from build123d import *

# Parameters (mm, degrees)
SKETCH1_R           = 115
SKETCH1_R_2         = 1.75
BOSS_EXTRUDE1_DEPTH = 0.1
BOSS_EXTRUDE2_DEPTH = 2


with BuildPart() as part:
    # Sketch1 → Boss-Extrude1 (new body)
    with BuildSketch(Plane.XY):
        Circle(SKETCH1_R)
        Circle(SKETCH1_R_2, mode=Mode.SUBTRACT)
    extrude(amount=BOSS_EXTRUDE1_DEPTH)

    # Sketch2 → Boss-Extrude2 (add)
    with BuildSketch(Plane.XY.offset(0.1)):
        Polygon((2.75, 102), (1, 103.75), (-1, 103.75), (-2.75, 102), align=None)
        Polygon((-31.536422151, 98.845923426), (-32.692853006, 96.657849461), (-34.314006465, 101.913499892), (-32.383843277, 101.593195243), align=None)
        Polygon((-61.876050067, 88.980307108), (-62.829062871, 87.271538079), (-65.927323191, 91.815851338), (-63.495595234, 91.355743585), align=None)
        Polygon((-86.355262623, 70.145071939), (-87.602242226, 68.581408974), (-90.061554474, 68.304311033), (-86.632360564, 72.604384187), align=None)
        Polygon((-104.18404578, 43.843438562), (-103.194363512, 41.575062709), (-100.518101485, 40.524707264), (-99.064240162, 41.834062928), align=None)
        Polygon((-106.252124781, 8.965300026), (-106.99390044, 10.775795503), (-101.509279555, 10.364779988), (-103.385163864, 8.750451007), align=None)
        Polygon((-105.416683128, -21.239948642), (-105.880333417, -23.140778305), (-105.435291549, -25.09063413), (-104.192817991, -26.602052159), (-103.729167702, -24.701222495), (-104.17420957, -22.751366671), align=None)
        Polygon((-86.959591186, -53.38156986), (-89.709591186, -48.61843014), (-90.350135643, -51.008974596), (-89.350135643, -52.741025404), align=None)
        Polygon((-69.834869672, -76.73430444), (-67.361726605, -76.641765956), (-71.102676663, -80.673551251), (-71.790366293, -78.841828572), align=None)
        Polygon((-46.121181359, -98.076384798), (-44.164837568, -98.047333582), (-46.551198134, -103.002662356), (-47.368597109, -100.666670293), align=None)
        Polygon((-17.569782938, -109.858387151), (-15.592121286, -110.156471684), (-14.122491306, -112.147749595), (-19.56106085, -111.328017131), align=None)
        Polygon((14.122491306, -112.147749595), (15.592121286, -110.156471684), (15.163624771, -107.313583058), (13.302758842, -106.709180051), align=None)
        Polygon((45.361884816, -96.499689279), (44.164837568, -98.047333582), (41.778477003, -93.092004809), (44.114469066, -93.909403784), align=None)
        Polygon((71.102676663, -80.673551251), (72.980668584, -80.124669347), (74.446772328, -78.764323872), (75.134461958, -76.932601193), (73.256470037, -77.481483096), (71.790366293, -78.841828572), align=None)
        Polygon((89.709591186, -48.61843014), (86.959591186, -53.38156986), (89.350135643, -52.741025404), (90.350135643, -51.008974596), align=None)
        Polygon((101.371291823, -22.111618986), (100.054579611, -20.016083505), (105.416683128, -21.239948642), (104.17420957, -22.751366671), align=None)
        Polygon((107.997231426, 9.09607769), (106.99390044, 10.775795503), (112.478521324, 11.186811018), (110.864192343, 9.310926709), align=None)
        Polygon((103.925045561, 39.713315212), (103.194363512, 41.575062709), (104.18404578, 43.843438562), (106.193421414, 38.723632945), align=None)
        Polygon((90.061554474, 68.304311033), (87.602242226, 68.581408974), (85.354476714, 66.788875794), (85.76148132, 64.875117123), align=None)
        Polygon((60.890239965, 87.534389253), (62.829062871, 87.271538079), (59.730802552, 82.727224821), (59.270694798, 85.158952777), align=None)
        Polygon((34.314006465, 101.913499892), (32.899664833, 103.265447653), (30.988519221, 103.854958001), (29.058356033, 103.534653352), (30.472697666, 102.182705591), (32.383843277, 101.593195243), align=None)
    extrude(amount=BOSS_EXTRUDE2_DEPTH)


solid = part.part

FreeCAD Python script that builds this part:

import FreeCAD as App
import Part
import Sketcher
Q = App.Units.Quantity


def add_polygon(sketch, points):
    """Adds a closed chain of lines whose ends are joined by coincident constraints."""
    first, n = sketch.GeometryCount, len(points)
    for a, b in zip(points, points[1:] + points[:1]):
        sketch.addGeometry(Part.LineSegment(App.Vector(*a, 0), App.Vector(*b, 0)), False)
    for i in range(n):
        sketch.addConstraint(Sketcher.Constraint("Coincident", first + i, 2, first + (i + 1) % n, 1))

doc = App.newDocument("Part")
body = doc.addObject("PartDesign::Body", "Body")

sketch1 = body.newObject("Sketcher::SketchObject", "Sketch")
sketch1.AttachmentSupport = (doc.getObject("XY_Plane"), [""])
sketch1.MapMode = "FlatFace"
sketch1.addGeometry([
    Part.Circle(App.Vector(0, 0, 0), App.Vector(0, 0, 1), 115),
    Part.Circle(App.Vector(0, 0, 0), App.Vector(0, 0, 1), 1.8),
], False)
sketch1.addConstraint([
    Sketcher.Constraint("Coincident", 0, 3, -1, 1),
    Sketcher.Constraint("Coincident", 1, 3, -1, 1),
    Sketcher.Constraint("Diameter", 0, Q("230 mm")),
    Sketcher.Constraint("Diameter", 1, Q("3.5 mm")),
])
pad1 = body.newObject("PartDesign::Pad", "Pad")
pad1.Profile = sketch1
pad1.Length = 0.1

sketch2 = body.newObject("Sketcher::SketchObject", "Sketch001")
sketch2.AttachmentSupport = (doc.getObject("XY_Plane"), [""])
sketch2.MapMode = "FlatFace"
sketch2.AttachmentOffset = App.Placement(App.Vector(0, 0, 0.1), App.Rotation())
add_polygon(sketch2, [(2.8, 102), (1, 103.8), (-1, 103.8), (-2.8, 102)])
add_polygon(sketch2, [(-32.7, 96.7), (-31.5, 98.8), (-32.4, 101.6), (-34.3, 101.9)])
add_polygon(sketch2, [(-62.8, 87.3), (-61.9, 89), (-63.5, 91.4), (-65.9, 91.8)])
add_polygon(sketch2, [(-87.6, 68.6), (-86.4, 70.1), (-86.6, 72.6), (-90.1, 68.3)])
add_polygon(sketch2, [(-104.2, 43.8), (-103.2, 41.6), (-100.5, 40.5), (-99.1, 41.8)])
add_polygon(sketch2, [(-107, 10.8), (-106.3, 9), (-103.4, 8.8), (-101.5, 10.4)])
add_polygon(sketch2, [(-105.4, -21.2), (-105.9, -23.1), (-105.4, -25.1), (-104.2, -26.6), (-103.7, -24.7), (-104.2, -22.8)])
add_polygon(sketch2, [(-87, -53.4), (-89.7, -48.6), (-90.4, -51), (-89.4, -52.7)])
add_polygon(sketch2, [(-67.4, -76.6), (-69.8, -76.7), (-71.8, -78.8), (-71.1, -80.7)])
add_polygon(sketch2, [(-44.2, -98), (-46.1, -98.1), (-47.4, -100.7), (-46.6, -103)])
add_polygon(sketch2, [(-15.6, -110.2), (-17.6, -109.9), (-19.6, -111.3), (-14.1, -112.1)])
add_polygon(sketch2, [(14.1, -112.1), (15.6, -110.2), (15.2, -107.3), (13.3, -106.7)])
add_polygon(sketch2, [(44.2, -98), (45.4, -96.5), (44.1, -93.9), (41.8, -93.1)])
add_polygon(sketch2, [(71.1, -80.7), (73, -80.1), (74.4, -78.8), (75.1, -76.9), (73.3, -77.5), (71.8, -78.8)])
add_polygon(sketch2, [(89.7, -48.6), (87, -53.4), (89.4, -52.7), (90.4, -51)])
add_polygon(sketch2, [(100.1, -20), (101.4, -22.1), (104.2, -22.8), (105.4, -21.2)])
add_polygon(sketch2, [(107, 10.8), (108, 9.1), (110.9, 9.3), (112.5, 11.2)])
add_polygon(sketch2, [(103.2, 41.6), (103.9, 39.7), (106.2, 38.7), (104.2, 43.8)])
add_polygon(sketch2, [(90.1, 68.3), (87.6, 68.6), (85.4, 66.8), (85.8, 64.9)])
add_polygon(sketch2, [(62.8, 87.3), (60.9, 87.5), (59.3, 85.2), (59.7, 82.7)])
add_polygon(sketch2, [(34.3, 101.9), (32.9, 103.3), (31, 103.9), (29.1, 103.5), (30.5, 102.2), (32.4, 101.6)])
sketch2.addConstraint([
    Sketcher.Constraint("Horizontal", 1),
    Sketcher.Constraint("Horizontal", 3),
    Sketcher.Constraint("Symmetric", 45, 2, 46, 2, -2),
    Sketcher.Constraint("Symmetric", 44, 2, 49, 2, -2),
    Sketcher.Constraint("Symmetric", 41, 2, 53, 2, -2),
    Sketcher.Constraint("Symmetric", 35, 2, 58, 2, -2),
    Sketcher.Constraint("Symmetric", 36, 2, 59, 2, -2),
    Sketcher.Constraint("Symmetric", 33, 2, 60, 2, -2),
    Sketcher.Constraint("Symmetric", 32, 2, 61, 2, -2),
    Sketcher.Constraint("Symmetric", 31, 2, 62, 2, -2),
    Sketcher.Constraint("Symmetric", 30, 2, 63, 2, -2),
    Sketcher.Constraint("Symmetric", 28, 2, 65, 2, -2),
    Sketcher.Constraint("Symmetric", 29, 2, 66, 2, -2),
    Sketcher.Constraint("Symmetric", 23, 2, 71, 2, -2),
    Sketcher.Constraint("Symmetric", 19, 2, 74, 2, -2),
    Sketcher.Constraint("Symmetric", 16, 2, 75, 2, -2),
    Sketcher.Constraint("Symmetric", 15, 2, 76, 2, -2),
    Sketcher.Constraint("Symmetric", 14, 2, 79, 2, -2),
    Sketcher.Constraint("Symmetric", 11, 2, 83, 2, -2),
    Sketcher.Constraint("Symmetric", 5, 2, 88, 2, -2),
    Sketcher.Constraint("Symmetric", 6, 2, 89, 2, -2),
    Sketcher.Constraint("Perpendicular", 0, 2),
    Sketcher.Constraint("Parallel", 5, 7),
    Sketcher.Constraint("Parallel", 9, 11),
    Sketcher.Constraint("Parallel", 12, 14),
    Sketcher.Constraint("Perpendicular", 13, 15),
    Sketcher.Constraint("Parallel", 17, 19),
    Sketcher.Constraint("Parallel", 21, 23),
    Sketcher.Constraint("Parallel", 24, 27),
    Sketcher.Constraint("Parallel", 25, 28),
    Sketcher.Constraint("Parallel", 26, 29),
    Sketcher.Constraint("Parallel", 30, 32),
    Sketcher.Constraint("Perpendicular", 31, 33),
    Sketcher.Constraint("Parallel", 35, 37),
    Sketcher.Constraint("Parallel", 39, 41),
    Sketcher.Constraint("Parallel", 42, 44),
    Sketcher.Constraint("Perpendicular", 43, 45),
    Sketcher.Constraint("Parallel", 47, 49),
    Sketcher.Constraint("Parallel", 51, 53),
    Sketcher.Constraint("Parallel", 54, 57),
    Sketcher.Constraint("Parallel", 55, 58),
    Sketcher.Constraint("Parallel", 56, 59),
    Sketcher.Constraint("Parallel", 65, 67),
    Sketcher.Constraint("Parallel", 69, 71),
    Sketcher.Constraint("Parallel", 72, 74),
    Sketcher.Constraint("Perpendicular", 73, 75),
    Sketcher.Constraint("Parallel", 77, 79),
    Sketcher.Constraint("Parallel", 81, 83),
    Sketcher.Constraint("Parallel", 84, 87),
    Sketcher.Constraint("Parallel", 85, 88),
    Sketcher.Constraint("Parallel", 86, 89),
    Sketcher.Constraint("Equal", 0, 2),
    Sketcher.Constraint("Equal", 2, 4),
    Sketcher.Constraint("Equal", 6, 8),
    Sketcher.Constraint("Equal", 5, 9),
    Sketcher.Constraint("Equal", 4, 10),
    Sketcher.Constraint("Equal", 7, 11),
    Sketcher.Constraint("Equal", 10, 13),
    Sketcher.Constraint("Equal", 11, 14),
    Sketcher.Constraint("Equal", 13, 15),
    Sketcher.Constraint("Equal", 15, 16),
    Sketcher.Constraint("Equal", 9, 17),
    Sketcher.Constraint("Equal", 8, 18),
    Sketcher.Constraint("Equal", 14, 19),
    Sketcher.Constraint("Equal", 18, 20),
    Sketcher.Constraint("Equal", 17, 21),
    Sketcher.Constraint("Equal", 16, 22),
    Sketcher.Constraint("Equal", 19, 23),
    Sketcher.Constraint("Equal", 20, 24),
    Sketcher.Constraint("Equal", 12, 25),
    Sketcher.Constraint("Equal", 24, 26),
    Sketcher.Constraint("Equal", 26, 27),
    Sketcher.Constraint("Equal", 23, 30),
    Sketcher.Constraint("Equal", 22, 31),
    Sketcher.Constraint("Equal", 28, 32),
    Sketcher.Constraint("Equal", 33, 34),
    Sketcher.Constraint("Equal", 21, 35),
    Sketcher.Constraint("Equal", 29, 36),
    Sketcher.Constraint("Equal", 30, 37),
    Sketcher.Constraint("Equal", 36, 38),
    Sketcher.Constraint("Equal", 35, 39),
    Sketcher.Constraint("Equal", 34, 40),
    Sketcher.Constraint("Equal", 37, 41),
    Sketcher.Constraint("Equal", 32, 42),
    Sketcher.Constraint("Equal", 40, 43),
    Sketcher.Constraint("Equal", 41, 44),
    Sketcher.Constraint("Equal", 39, 47),
    Sketcher.Constraint("Equal", 38, 48),
    Sketcher.Constraint("Equal", 44, 49),
    Sketcher.Constraint("Equal", 48, 50),
    Sketcher.Constraint("Equal", 47, 51),
    Sketcher.Constraint("Equal", 46, 52),
    Sketcher.Constraint("Equal", 49, 53),
    Sketcher.Constraint("Equal", 50, 54),
    Sketcher.Constraint("Equal", 42, 55),
    Sketcher.Constraint("Equal", 54, 56),
    Sketcher.Constraint("Equal", 63, 64),
    Sketcher.Constraint("Equal", 51, 65),
    Sketcher.Constraint("Equal", 60, 67),
    Sketcher.Constraint("Equal", 66, 68),
    Sketcher.Constraint("Equal", 65, 69),
    Sketcher.Constraint("Equal", 64, 70),
    Sketcher.Constraint("Equal", 67, 71),
    Sketcher.Constraint("Equal", 62, 72),
    Sketcher.Constraint("Equal", 70, 73),
    Sketcher.Constraint("Equal", 69, 77),
    Sketcher.Constraint("Equal", 68, 78),
    Sketcher.Constraint("Equal", 74, 79),
    Sketcher.Constraint("Equal", 78, 80),
    Sketcher.Constraint("Equal", 77, 81),
    Sketcher.Constraint("Equal", 76, 82),
    Sketcher.Constraint("Equal", 79, 83),
    Sketcher.Constraint("Equal", 80, 84),
    Sketcher.Constraint("Equal", 72, 85),
    Sketcher.Constraint("Equal", 84, 86),
    Sketcher.Constraint("DistanceX", 1, 2, 1, 1, Q("2 mm")),
    Sketcher.Constraint("Angle", 30, Q("120 deg")),
    Sketcher.Constraint("Distance", 12, Q("2 mm")),
    Sketcher.Constraint("DistanceX", 3, 1, 3, 2, Q("5.5 mm")),
    Sketcher.Constraint("DistanceX", -1, 1, 0, 2, Q("1 mm")),
    Sketcher.Constraint("DistanceY", -1, 1, 2, 2, Q("102 mm")),
    Sketcher.Constraint("Distance", 5, Q("2.875 mm")),
    Sketcher.Constraint("DistanceY", -1, 1, 6, 2, Q("101.9135 mm")),
    Sketcher.Constraint("DistanceX", 17, 2, -1, 1, Q("100.518101 mm")),
    Sketcher.Constraint("DistanceY", -1, 1, 20, 2, Q("8.9653 mm")),
    Sketcher.Constraint("DistanceX", 23, 2, -1, 1, Q("106.9939 mm")),
    Sketcher.Constraint("DistanceX", 40, 2, -1, 1, Q("46.551198 mm")),
    Sketcher.Constraint("DistanceY", 56, 2, -1, 1, Q("76.932601 mm")),
    Sketcher.Constraint("Distance", 6, Q("1.956559 mm")),
    Sketcher.Constraint("DistanceY", -1, 1, 7, 2, Q("96.657849 mm")),
    Sketcher.Constraint("DistanceX", 8, 2, -1, 1, Q("61.87605 mm")),
    Sketcher.Constraint("DistanceY", -1, 1, 10, 2, Q("91.815851 mm")),
    Sketcher.Constraint("DistanceY", -1, 1, 11, 2, Q("87.271538 mm")),
    Sketcher.Constraint("DistanceY", -1, 1, 12, 2, Q("70.145072 mm")),
    Sketcher.Constraint("DistanceX", 13, 2, -1, 1, Q("86.632361 mm")),
    Sketcher.Constraint("DistanceY", -1, 1, 14, 2, Q("68.304311 mm")),
    Sketcher.Constraint("DistanceX", 18, 2, -1, 1, Q("99.06424 mm")),
    Sketcher.Constraint("DistanceY", -1, 1, 19, 2, Q("43.843439 mm")),
    Sketcher.Constraint("DistanceY", -1, 1, 21, 2, Q("8.750451 mm")),
    Sketcher.Constraint("DistanceY", 24, 2, -1, 1, Q("23.140778 mm")),
    Sketcher.Constraint("DistanceX", 25, 2, -1, 1, Q("105.435292 mm")),
    Sketcher.Constraint("DistanceX", 28, 2, -1, 1, Q("104.17421 mm")),
    Sketcher.Constraint("DistanceY", 29, 2, -1, 1, Q("21.239949 mm")),
    Sketcher.Constraint("DistanceX", 30, 2, -1, 1, Q("89.709591 mm")),
    Sketcher.Constraint("DistanceY", 30, 2, -1, 1, Q("48.61843 mm")),
    Sketcher.Constraint("DistanceX", 34, 2, -1, 1, Q("69.83487 mm")),
    Sketcher.Constraint("DistanceY", 35, 2, -1, 1, Q("78.841829 mm")),
    Sketcher.Constraint("DistanceY", 36, 2, -1, 1, Q("80.673551 mm")),
    Sketcher.Constraint("DistanceX", 38, 2, -1, 1, Q("46.121181 mm")),
    Sketcher.Constraint("DistanceY", 39, 2, -1, 1, Q("100.66667 mm")),
    Sketcher.Constraint("DistanceX", 43, 2, -1, 1, Q("19.561061 mm")),
    Sketcher.Constraint("DistanceX", 44, 2, -1, 1, Q("14.122491 mm")),
    Sketcher.Constraint("DistanceY", 44, 2, -1, 1, Q("112.14775 mm")),
    Sketcher.Constraint("DistanceY", 50, 2, -1, 1, Q("96.499689 mm")),
    Sketcher.Constraint("DistanceX", -1, 1, 54, 2, Q("72.980669 mm")),
    Sketcher.Constraint("DistanceX", -1, 1, 64, 2, Q("101.371292 mm")),
    Sketcher.Constraint("DistanceX", -1, 1, 68, 2, Q("107.997231 mm")),
    Sketcher.Constraint("DistanceX", -1, 1, 80, 2, Q("60.89024 mm")),
    Sketcher.Constraint("DistanceX", -1, 1, 85, 2, Q("30.988519 mm")),
    Sketcher.Constraint("DistanceY", -1, 1, 85, 2, Q("103.854958 mm")),
    Sketcher.Constraint("DistanceX", 4, 2, -1, 1, Q("31.536422 mm")),
])
pad2 = body.newObject("PartDesign::Pad", "Pad001")
pad2.Profile = sketch2
pad2.Length = 2

doc.recompute()
